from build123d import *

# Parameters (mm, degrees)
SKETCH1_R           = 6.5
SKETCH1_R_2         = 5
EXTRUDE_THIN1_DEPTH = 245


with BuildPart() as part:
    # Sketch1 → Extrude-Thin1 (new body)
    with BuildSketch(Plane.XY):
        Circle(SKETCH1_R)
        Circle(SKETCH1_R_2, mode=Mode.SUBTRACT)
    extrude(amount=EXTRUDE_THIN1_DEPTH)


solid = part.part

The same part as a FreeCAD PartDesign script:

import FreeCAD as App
import Part
import Sketcher
Q = App.Units.Quantity

doc = App.newDocument("Part")
body = doc.addObject("PartDesign::Body", "Body")

# Sketch on XY plane
sketch1 = body.newObject("Sketcher::SketchObject", "Sketch")
sketch1.AttachmentSupport = (doc.getObject("XY_Plane"), [""])
sketch1.MapMode = "FlatFace"
sketch1.addGeometry([
    Part.Circle(App.Vector(0, 0, 0), App.Vector(0, 0, 1), 6.5),
    Part.Circle(App.Vector(0, 0, 0), App.Vector(0, 0, 1), 5),
], False)
sketch1.addConstraint([
    Sketcher.Constraint("Coincident", 0, 3, -1, 1),
    Sketcher.Constraint("Coincident", 1, 3, -1, 1),
    Sketcher.Constraint("Diameter", 0, Q("13 mm")),
    Sketcher.Constraint("Diameter", 1, Q("10 mm")),
])
pad1 = body.newObject("PartDesign::Pad", "Pad")
pad1.Profile = sketch1
pad1.Length = 245

doc.recompute()
